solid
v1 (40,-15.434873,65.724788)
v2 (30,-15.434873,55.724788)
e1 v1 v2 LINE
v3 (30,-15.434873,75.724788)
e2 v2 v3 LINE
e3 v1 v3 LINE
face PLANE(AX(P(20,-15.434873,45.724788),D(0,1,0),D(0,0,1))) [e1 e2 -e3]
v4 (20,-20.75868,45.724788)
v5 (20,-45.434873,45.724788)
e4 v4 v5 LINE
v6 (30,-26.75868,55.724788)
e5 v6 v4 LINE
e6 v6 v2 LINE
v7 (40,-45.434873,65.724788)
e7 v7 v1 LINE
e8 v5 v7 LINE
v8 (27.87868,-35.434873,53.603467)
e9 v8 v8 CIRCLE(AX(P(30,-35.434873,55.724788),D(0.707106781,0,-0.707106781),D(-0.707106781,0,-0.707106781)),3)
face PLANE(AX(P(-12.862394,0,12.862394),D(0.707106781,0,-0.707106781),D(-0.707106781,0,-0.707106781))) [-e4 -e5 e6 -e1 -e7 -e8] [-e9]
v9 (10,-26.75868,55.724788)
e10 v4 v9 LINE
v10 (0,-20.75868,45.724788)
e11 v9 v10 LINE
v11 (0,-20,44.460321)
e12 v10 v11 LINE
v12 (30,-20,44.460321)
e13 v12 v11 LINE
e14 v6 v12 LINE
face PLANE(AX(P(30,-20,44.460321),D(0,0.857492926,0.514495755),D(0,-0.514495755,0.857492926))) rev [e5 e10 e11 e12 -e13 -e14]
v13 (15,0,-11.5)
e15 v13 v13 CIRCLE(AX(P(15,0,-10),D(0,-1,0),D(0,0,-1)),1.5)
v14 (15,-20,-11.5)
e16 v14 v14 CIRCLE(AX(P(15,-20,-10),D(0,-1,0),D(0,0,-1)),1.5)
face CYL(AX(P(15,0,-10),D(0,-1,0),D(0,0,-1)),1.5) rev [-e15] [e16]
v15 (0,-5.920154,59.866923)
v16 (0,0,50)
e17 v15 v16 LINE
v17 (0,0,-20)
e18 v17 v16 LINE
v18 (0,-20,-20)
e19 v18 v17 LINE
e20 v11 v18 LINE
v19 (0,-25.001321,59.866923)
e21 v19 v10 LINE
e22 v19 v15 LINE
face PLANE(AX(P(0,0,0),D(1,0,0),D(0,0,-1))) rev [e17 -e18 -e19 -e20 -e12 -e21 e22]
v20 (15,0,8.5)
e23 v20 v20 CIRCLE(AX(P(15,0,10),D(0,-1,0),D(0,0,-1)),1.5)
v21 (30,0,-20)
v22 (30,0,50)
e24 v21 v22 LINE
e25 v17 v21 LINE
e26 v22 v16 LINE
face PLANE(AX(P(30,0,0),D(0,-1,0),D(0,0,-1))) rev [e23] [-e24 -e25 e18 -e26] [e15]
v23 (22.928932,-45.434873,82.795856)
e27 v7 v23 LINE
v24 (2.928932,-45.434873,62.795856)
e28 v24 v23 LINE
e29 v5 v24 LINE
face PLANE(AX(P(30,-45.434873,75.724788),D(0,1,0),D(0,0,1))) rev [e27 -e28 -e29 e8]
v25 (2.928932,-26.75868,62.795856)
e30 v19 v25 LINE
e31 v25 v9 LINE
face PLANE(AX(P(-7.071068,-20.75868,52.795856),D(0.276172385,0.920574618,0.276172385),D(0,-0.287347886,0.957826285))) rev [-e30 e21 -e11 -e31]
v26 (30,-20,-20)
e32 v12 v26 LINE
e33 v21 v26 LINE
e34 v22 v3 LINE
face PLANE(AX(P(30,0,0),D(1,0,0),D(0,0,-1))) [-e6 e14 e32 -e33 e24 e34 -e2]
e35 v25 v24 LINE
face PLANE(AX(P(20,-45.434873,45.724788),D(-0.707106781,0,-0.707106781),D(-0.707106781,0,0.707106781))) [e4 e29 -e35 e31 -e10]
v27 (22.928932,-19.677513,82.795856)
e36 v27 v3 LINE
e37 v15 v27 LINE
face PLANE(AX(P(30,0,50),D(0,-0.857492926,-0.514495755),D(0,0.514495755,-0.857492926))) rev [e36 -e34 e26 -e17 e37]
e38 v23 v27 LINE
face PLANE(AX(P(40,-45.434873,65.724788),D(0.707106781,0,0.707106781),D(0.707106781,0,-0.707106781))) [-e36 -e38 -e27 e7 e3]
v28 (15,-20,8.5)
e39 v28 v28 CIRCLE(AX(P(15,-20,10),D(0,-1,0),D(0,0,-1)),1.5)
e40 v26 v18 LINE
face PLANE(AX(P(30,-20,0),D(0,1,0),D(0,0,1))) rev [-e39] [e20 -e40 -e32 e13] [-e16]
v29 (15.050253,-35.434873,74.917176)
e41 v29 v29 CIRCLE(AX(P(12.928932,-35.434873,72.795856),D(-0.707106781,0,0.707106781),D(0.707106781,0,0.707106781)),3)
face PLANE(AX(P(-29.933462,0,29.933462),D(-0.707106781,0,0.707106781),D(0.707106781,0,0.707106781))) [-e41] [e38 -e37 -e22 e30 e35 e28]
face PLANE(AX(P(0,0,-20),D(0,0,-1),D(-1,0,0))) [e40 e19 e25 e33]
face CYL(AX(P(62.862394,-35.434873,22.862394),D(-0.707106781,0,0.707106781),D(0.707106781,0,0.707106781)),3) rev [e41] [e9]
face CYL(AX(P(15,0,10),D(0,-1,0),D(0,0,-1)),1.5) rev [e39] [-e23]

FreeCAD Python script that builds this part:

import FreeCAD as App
import Part
import Sketcher


def add_polygon(sketch, points):
    """Adds a closed chain of lines whose ends are joined by coincident constraints."""
    first, n = sketch.GeometryCount, len(points)
    for a, b in zip(points, points[1:] + points[:1]):
        sketch.addGeometry(Part.LineSegment(App.Vector(*a, 0), App.Vector(*b, 0)), False)
    for i in range(n):
        sketch.addConstraint(Sketcher.Constraint("Coincident", first + i, 2, first + (i + 1) % n, 1))

doc = App.newDocument("Part")
params = doc.addObject("Spreadsheet::Sheet", "Params")
for row, (alias, value) in enumerate([
    ("sketch1_width", "30 mm"),
    ("sketch1_width2", "20 mm"),
    ("sketch1_height", "50 mm"),
    ("sketch1_length", "30 mm"),
    ("pad1_length", "30 mm"),
    ("pocket1_length", "30 mm"),
    ("sketch3_diameter", "6 mm"),
    ("sketch4_height", "30 mm"),
    ("pad2_length", "14.142136 mm"),
    ("sketch5_height", "30 mm"),
    ("pad3_length", "10 mm"),
    ("pocket3_length", "60 mm"),
    ("sketch7_diameter", "6 mm"),
    ("pocket5_length", "50 mm"),
    ("sketch9_width", "30 mm"),
    ("sketch9_height", "20 mm"),
    ("pad4_length", "20 mm"),
    ("sketch10_diameter", "3 mm"),
    ("pocket6_length", "20 mm"),
], start=1):
    params.set(f"A{row}", alias)
    params.set(f"B{row}", "=" + value)
    params.setAlias(f"B{row}", alias)

body = doc.addObject("PartDesign::Body", "Body")

# Sketch on YZ plane
sketch1 = body.newObject("Sketcher::SketchObject", "Sketch")
sketch1.AttachmentSupport = (doc.getObject("YZ_Plane"), [""])
sketch1.MapMode = "FlatFace"
add_polygon(sketch1, [(0, 0), (0, 50), (-15.434873, 75.724788), (-45.434873, 75.724788), (-45.434873, 55.724788), (-26.75868, 55.724788), (-20, 44.460321), (-20, 0)])  # lines 0-7
sketch1.addConstraint([
    Sketcher.Constraint("Vertical", 0),
    Sketcher.Constraint("Horizontal", 2),
    Sketcher.Constraint("Vertical", 3),
    Sketcher.Constraint("Horizontal", 4),
    Sketcher.Constraint("Vertical", 6),
    Sketcher.Constraint("Horizontal", 7),
    Sketcher.Constraint("Coincident", 7, 2, -1, 1),
    Sketcher.Constraint("Parallel", 1, 5),
    Sketcher.Constraint("Equal", 7, 3),
    Sketcher.Constraint("DistanceX", 2, 2, 2, 1, 30.0),
    Sketcher.Constraint("DistanceX", 7, 1, 7, 2, 20.0),
    Sketcher.Constraint("DistanceY", 0, 1, 0, 2, 50.0),
    Sketcher.Constraint("Distance", 1, 30.0),
    Sketcher.Constraint("DistanceY", 6, 2, 6, 1, 44.460321),
    Sketcher.Constraint("DistanceX", 4, 1, 4, 2, 18.676192),
])
sketch1.setExpression("Constraints[17]", "Params.sketch1_width")
sketch1.setExpression("Constraints[18]", "Params.sketch1_width2")
sketch1.setExpression("Constraints[19]", "Params.sketch1_height")
sketch1.setExpression("Constraints[20]", "Params.sketch1_length")
pad1 = body.newObject("PartDesign::Pad", "Pad")
pad1.Profile = sketch1
pad1.setExpression("Length", "Params.pad1_length")

# Sketch on an angled plane
sketch2 = body.newObject("Sketcher::SketchObject", "Sketch001")
sketch2.Placement = App.Placement(App.Vector(-22.862394, 0, 22.862394), App.Rotation(App.Vector(0.707106781, 0, 0.707106781), App.Vector(0, 0.999999999, 0), App.Vector(-0.707106781, 0, 0.707106781), "ZXY"))
add_polygon(sketch2, [(21.2018, 10.613325), (21.2018, -50.35238), (81.83122, -50.35238), (81.83122, 10.613325)])  # lines 0-3
sketch2.addConstraint([
    Sketcher.Constraint("Vertical", 0),
    Sketcher.Constraint("Horizontal", 1),
    Sketcher.Constraint("Vertical", 2),
    Sketcher.Constraint("Horizontal", 3),
    Sketcher.Constraint("DistanceX", 1, 1, 1, 2, 60.62942),
    Sketcher.Constraint("DistanceX", -1, 1, 0, 2, 21.2018),
    Sketcher.Constraint("DistanceY", 0, 2, 0, 1, 60.965705),
    Sketcher.Constraint("DistanceY", 0, 2, -1, 1, 50.35238),
])
pocket1 = body.newObject("PartDesign::Pocket", "Pocket")
pocket1.Profile = sketch2
pocket1.setExpression("Length", "Params.pocket1_length")
pocket1.Reversed = True

# Sketch on an angled plane
sketch3 = body.newObject("Sketcher::SketchObject", "Sketch002")
sketch3.Placement = App.Placement(App.Vector(-22.862394, 0, 22.862394), App.Rotation(App.Vector(0.707106781, 0, 0.707106781), App.Vector(0, 0.999999999, 0), App.Vector(-0.707106781, 0, 0.707106781), "ZXY"))
sketch3.addGeometry(Part.Circle(App.Vector(60.616579, -34.226076, 0), App.Vector(0, 0, 1), 3), False)
sketch3.addConstraint([
    Sketcher.Constraint("Diameter", 0, 6.0),
    Sketcher.Constraint("DistanceX", -1, 1, 0, 3, 60.616579),
    Sketcher.Constraint("DistanceY", 0, 3, -1, 1, 34.226076),
])
sketch3.setExpression("Constraints[0]", "Params.sketch3_diameter")
pocket2 = body.newObject("PartDesign::Pocket", "Pocket001")
pocket2.Profile = sketch3
pocket2.Type = "ThroughAll"

# Sketch on an angled plane
sketch4 = body.newObject("Sketcher::SketchObject", "Sketch003")
sketch4.Placement = App.Placement(App.Vector(-22.862394, 0, 22.862394), App.Rotation(App.Vector(0.707106781, 0, 0.707106781), App.Vector(0, 0.999999999, 0), App.Vector(-0.707106781, 0, 0.707106781), "ZXY"))
add_polygon(sketch4, [(46.474443, -15.434873), (46.474443, -45.434873), (74.758714, -45.434873), (74.758714, -15.434873)])  # lines 0-3
sketch4.addConstraint([
    Sketcher.Constraint("Vertical", 0),
    Sketcher.Constraint("Horizontal", 1),
    Sketcher.Constraint("Vertical", 2),
    Sketcher.Constraint("Horizontal", 3),
    Sketcher.Constraint("DistanceY", 0, 2, 0, 1, 30.0),
    Sketcher.Constraint("DistanceX", 1, 1, 1, 2, 28.284271),
    Sketcher.Constraint("DistanceX", -1, 1, 0, 2, 46.474443),
    Sketcher.Constraint("DistanceY", 0, 2, -1, 1, 45.434873),
])
sketch4.setExpression("Constraints[8]", "Params.sketch4_height")
pad2 = body.newObject("PartDesign::Pad", "Pad001")
pad2.Profile = sketch4
pad2.setExpression("Length", "Params.pad2_length")
pad2.Reversed = True

# Sketch on an angled plane
sketch5 = body.newObject("Sketcher::SketchObject", "Sketch004")
sketch5.Placement = App.Placement(App.Vector(-22.862394, 0, 22.862394), App.Rotation(App.Vector(0.707106781, 0, 0.707106781), App.Vector(0, 0.999999999, 0), App.Vector(-0.707106781, 0, 0.707106781), "ZXY"))
add_polygon(sketch5, [(32.332307, -20.75868), (46.474443, -26.75868), (46.474443, -45.434873), (74.758714, -45.434873), (74.758714, -15.434873), (38.378371, 0), (32.332307, 0)])  # lines 0-6
sketch5.addConstraint([
    Sketcher.Constraint("Vertical", 1),
    Sketcher.Constraint("Horizontal", 2),
    Sketcher.Constraint("Vertical", 3),
    Sketcher.Constraint("Horizontal", 5),
    Sketcher.Constraint("Vertical", 6),
    Sketcher.Constraint("PointOnObject", 4, 2, -1),
    Sketcher.Constraint("Parallel", 0, 4),
    Sketcher.Constraint("DistanceY", 3, 1, 3, 2, 30.0),
    Sketcher.Constraint("DistanceY", 0, 2, 6, 2, 6.0),
    Sketcher.Constraint("DistanceX", 2, 1, 2, 2, 28.284271),
    Sketcher.Constraint("DistanceY", 6, 2, 6, 1, 20.75868),
    Sketcher.Constraint("Distance", 0, 15.362291),
    Sketcher.Constraint("Distance", 4, 39.519169),
    Sketcher.Constraint("DistanceX", -1, 1, 4, 2, 38.378371),
])
sketch5.setExpression("Constraints[14]", "Params.sketch5_height")
pad3 = body.newObject("PartDesign::Pad", "Pad002")
pad3.Profile = sketch5
pad3.setExpression("Length", "Params.pad3_length")

# Sketch on XZ plane
sketch6 = body.newObject("Sketcher::SketchObject", "Sketch005")
sketch6.AttachmentSupport = (doc.getObject("XZ_Plane"), [""])
sketch6.MapMode = "FlatFace"
add_polygon(sketch6, [(-23.581736, 42.954947), (-23.581736, 73.161119), (0, 73.161119), (0, 42.954947)])  # lines 0-3
sketch6.addConstraint([
    Sketcher.Constraint("Vertical", 0),
    Sketcher.Constraint("Horizontal", 1),
    Sketcher.Constraint("Vertical", 2),
    Sketcher.Constraint("Horizontal", 3),
    Sketcher.Constraint("PointOnObject", 1, 2, -2),
    Sketcher.Constraint("DistanceY", 0, 1, 0, 2, 30.206172),
    Sketcher.Constraint("DistanceX", 1, 1, 1, 2, 23.581736),
    Sketcher.Constraint("DistanceY", -1, 1, 0, 2, 73.161119),
])
pocket3 = body.newObject("PartDesign::Pocket", "Pocket002")
pocket3.Profile = sketch6
pocket3.setExpression("Length", "Params.pocket3_length")
pocket3.Reversed = True

# Sketch on an angled plane
sketch7 = body.newObject("Sketcher::SketchObject", "Sketch006")
sketch7.Placement = App.Placement(App.Vector(-29.933462, 0, 29.933462), App.Rotation(App.Vector(0.707106781, 0, 0.707106781), App.Vector(0, 0.999999999, 0), App.Vector(-0.707106781, 0, 0.707106781), "ZXY"))
sketch7.addGeometry(Part.Circle(App.Vector(60.616579, -35.434873, 0), App.Vector(0, 0, 1), 3), False)
sketch7.addConstraint([
    Sketcher.Constraint("Diameter", 0, 6.0),
    Sketcher.Constraint("DistanceX", -1, 1, 0, 3, 60.616579),
    Sketcher.Constraint("DistanceY", 0, 3, -1, 1, 35.434873),
])
sketch7.setExpression("Constraints[0]", "Params.sketch7_diameter")
pocket4 = body.newObject("PartDesign::Pocket", "Pocket003")
pocket4.Profile = sketch7
pocket4.Type = "ThroughAll"

# Sketch on an angled plane
sketch8 = body.newObject("Sketcher::SketchObject", "Sketch007")
sketch8.Placement = App.Placement(App.Vector(0, 22.058824, 13.235294), App.Rotation(App.Vector(1, 0, 0), App.Vector(0, 0.514495755, -0.857492926), App.Vector(0, 0.857492926, 0.514495755), "ZXY"))
add_polygon(sketch8, [(-32.012454, -40.390021), (-32.012454, -96.791275), (47.059894, -96.791275), (47.059894, -40.390021)])  # lines 0-3
sketch8.addConstraint([
    Sketcher.Constraint("Vertical", 0),
    Sketcher.Constraint("Horizontal", 1),
    Sketcher.Constraint("Vertical", 2),
    Sketcher.Constraint("Horizontal", 3),
    Sketcher.Constraint("DistanceX", 1, 1, 1, 2, 79.072347),
    Sketcher.Constraint("DistanceY", 0, 2, 0, 1, 56.401255),
    Sketcher.Constraint("DistanceY", 2, 2, -1, 1, 40.390021),
    Sketcher.Constraint("DistanceX", 0, 2, -1, 1, 32.012454),
])
pocket5 = body.newObject("PartDesign::Pocket", "Pocket004")
pocket5.Profile = sketch8
pocket5.setExpression("Length", "Params.pocket5_length")
pocket5.Reversed = True

# Sketch on XY plane
sketch9 = body.newObject("Sketcher::SketchObject", "Sketch008")
sketch9.AttachmentSupport = (doc.getObject("XY_Plane"), [""])
sketch9.MapMode = "FlatFace"
add_polygon(sketch9, [(30, 0), (30, -20), (0, -20), (0, 0)])  # lines 0-3
sketch9.addConstraint([
    Sketcher.Constraint("Vertical", 0),
    Sketcher.Constraint("Horizontal", 1),
    Sketcher.Constraint("Vertical", 2),
    Sketcher.Constraint("Horizontal", 3),
    Sketcher.Constraint("Coincident", 2, 2, -1, 1),
    Sketcher.Constraint("DistanceX", 1, 2, 1, 1, 30.0),
    Sketcher.Constraint("DistanceY", 0, 2, 0, 1, 20.0),
])
sketch9.setExpression("Constraints[9]", "Params.sketch9_width")
sketch9.setExpression("Constraints[10]", "Params.sketch9_height")
pad4 = body.newObject("PartDesign::Pad", "Pad003")
pad4.Profile = sketch9
pad4.setExpression("Length", "Params.pad4_length")
pad4.Reversed = True

# Sketch on XZ plane
sketch10 = body.newObject("Sketcher::SketchObject", "Sketch009")
sketch10.AttachmentSupport = (doc.getObject("XZ_Plane"), [""])
sketch10.MapMode = "FlatFace"
sketch10.AttachmentOffset = App.Placement(App.Vector(0, 0, 20), App.Rotation())
sketch10.addGeometry([
    Part.Circle(App.Vector(15, -10, 0), App.Vector(0, 0, 1), 1.5),
    Part.Circle(App.Vector(15, 10, 0), App.Vector(0, 0, 1), 1.5),
], False)
sketch10.addConstraint([
    Sketcher.Constraint("Equal", 0, 1),
    Sketcher.Constraint("Symmetric", 0, 3, 1, 3, -1),
    Sketcher.Constraint("Diameter", 0, 3.0),
    Sketcher.Constraint("DistanceX", -1, 1, 0, 3, 15.0),
    Sketcher.Constraint("DistanceY", 0, 3, -1, 1, 10.0),
])
sketch10.setExpression("Constraints[2]", "Params.sketch10_diameter")
pocket6 = body.newObject("PartDesign::Pocket", "Pocket005")
pocket6.Profile = sketch10
pocket6.setExpression("Length", "Params.pocket6_length")

doc.recompute()
